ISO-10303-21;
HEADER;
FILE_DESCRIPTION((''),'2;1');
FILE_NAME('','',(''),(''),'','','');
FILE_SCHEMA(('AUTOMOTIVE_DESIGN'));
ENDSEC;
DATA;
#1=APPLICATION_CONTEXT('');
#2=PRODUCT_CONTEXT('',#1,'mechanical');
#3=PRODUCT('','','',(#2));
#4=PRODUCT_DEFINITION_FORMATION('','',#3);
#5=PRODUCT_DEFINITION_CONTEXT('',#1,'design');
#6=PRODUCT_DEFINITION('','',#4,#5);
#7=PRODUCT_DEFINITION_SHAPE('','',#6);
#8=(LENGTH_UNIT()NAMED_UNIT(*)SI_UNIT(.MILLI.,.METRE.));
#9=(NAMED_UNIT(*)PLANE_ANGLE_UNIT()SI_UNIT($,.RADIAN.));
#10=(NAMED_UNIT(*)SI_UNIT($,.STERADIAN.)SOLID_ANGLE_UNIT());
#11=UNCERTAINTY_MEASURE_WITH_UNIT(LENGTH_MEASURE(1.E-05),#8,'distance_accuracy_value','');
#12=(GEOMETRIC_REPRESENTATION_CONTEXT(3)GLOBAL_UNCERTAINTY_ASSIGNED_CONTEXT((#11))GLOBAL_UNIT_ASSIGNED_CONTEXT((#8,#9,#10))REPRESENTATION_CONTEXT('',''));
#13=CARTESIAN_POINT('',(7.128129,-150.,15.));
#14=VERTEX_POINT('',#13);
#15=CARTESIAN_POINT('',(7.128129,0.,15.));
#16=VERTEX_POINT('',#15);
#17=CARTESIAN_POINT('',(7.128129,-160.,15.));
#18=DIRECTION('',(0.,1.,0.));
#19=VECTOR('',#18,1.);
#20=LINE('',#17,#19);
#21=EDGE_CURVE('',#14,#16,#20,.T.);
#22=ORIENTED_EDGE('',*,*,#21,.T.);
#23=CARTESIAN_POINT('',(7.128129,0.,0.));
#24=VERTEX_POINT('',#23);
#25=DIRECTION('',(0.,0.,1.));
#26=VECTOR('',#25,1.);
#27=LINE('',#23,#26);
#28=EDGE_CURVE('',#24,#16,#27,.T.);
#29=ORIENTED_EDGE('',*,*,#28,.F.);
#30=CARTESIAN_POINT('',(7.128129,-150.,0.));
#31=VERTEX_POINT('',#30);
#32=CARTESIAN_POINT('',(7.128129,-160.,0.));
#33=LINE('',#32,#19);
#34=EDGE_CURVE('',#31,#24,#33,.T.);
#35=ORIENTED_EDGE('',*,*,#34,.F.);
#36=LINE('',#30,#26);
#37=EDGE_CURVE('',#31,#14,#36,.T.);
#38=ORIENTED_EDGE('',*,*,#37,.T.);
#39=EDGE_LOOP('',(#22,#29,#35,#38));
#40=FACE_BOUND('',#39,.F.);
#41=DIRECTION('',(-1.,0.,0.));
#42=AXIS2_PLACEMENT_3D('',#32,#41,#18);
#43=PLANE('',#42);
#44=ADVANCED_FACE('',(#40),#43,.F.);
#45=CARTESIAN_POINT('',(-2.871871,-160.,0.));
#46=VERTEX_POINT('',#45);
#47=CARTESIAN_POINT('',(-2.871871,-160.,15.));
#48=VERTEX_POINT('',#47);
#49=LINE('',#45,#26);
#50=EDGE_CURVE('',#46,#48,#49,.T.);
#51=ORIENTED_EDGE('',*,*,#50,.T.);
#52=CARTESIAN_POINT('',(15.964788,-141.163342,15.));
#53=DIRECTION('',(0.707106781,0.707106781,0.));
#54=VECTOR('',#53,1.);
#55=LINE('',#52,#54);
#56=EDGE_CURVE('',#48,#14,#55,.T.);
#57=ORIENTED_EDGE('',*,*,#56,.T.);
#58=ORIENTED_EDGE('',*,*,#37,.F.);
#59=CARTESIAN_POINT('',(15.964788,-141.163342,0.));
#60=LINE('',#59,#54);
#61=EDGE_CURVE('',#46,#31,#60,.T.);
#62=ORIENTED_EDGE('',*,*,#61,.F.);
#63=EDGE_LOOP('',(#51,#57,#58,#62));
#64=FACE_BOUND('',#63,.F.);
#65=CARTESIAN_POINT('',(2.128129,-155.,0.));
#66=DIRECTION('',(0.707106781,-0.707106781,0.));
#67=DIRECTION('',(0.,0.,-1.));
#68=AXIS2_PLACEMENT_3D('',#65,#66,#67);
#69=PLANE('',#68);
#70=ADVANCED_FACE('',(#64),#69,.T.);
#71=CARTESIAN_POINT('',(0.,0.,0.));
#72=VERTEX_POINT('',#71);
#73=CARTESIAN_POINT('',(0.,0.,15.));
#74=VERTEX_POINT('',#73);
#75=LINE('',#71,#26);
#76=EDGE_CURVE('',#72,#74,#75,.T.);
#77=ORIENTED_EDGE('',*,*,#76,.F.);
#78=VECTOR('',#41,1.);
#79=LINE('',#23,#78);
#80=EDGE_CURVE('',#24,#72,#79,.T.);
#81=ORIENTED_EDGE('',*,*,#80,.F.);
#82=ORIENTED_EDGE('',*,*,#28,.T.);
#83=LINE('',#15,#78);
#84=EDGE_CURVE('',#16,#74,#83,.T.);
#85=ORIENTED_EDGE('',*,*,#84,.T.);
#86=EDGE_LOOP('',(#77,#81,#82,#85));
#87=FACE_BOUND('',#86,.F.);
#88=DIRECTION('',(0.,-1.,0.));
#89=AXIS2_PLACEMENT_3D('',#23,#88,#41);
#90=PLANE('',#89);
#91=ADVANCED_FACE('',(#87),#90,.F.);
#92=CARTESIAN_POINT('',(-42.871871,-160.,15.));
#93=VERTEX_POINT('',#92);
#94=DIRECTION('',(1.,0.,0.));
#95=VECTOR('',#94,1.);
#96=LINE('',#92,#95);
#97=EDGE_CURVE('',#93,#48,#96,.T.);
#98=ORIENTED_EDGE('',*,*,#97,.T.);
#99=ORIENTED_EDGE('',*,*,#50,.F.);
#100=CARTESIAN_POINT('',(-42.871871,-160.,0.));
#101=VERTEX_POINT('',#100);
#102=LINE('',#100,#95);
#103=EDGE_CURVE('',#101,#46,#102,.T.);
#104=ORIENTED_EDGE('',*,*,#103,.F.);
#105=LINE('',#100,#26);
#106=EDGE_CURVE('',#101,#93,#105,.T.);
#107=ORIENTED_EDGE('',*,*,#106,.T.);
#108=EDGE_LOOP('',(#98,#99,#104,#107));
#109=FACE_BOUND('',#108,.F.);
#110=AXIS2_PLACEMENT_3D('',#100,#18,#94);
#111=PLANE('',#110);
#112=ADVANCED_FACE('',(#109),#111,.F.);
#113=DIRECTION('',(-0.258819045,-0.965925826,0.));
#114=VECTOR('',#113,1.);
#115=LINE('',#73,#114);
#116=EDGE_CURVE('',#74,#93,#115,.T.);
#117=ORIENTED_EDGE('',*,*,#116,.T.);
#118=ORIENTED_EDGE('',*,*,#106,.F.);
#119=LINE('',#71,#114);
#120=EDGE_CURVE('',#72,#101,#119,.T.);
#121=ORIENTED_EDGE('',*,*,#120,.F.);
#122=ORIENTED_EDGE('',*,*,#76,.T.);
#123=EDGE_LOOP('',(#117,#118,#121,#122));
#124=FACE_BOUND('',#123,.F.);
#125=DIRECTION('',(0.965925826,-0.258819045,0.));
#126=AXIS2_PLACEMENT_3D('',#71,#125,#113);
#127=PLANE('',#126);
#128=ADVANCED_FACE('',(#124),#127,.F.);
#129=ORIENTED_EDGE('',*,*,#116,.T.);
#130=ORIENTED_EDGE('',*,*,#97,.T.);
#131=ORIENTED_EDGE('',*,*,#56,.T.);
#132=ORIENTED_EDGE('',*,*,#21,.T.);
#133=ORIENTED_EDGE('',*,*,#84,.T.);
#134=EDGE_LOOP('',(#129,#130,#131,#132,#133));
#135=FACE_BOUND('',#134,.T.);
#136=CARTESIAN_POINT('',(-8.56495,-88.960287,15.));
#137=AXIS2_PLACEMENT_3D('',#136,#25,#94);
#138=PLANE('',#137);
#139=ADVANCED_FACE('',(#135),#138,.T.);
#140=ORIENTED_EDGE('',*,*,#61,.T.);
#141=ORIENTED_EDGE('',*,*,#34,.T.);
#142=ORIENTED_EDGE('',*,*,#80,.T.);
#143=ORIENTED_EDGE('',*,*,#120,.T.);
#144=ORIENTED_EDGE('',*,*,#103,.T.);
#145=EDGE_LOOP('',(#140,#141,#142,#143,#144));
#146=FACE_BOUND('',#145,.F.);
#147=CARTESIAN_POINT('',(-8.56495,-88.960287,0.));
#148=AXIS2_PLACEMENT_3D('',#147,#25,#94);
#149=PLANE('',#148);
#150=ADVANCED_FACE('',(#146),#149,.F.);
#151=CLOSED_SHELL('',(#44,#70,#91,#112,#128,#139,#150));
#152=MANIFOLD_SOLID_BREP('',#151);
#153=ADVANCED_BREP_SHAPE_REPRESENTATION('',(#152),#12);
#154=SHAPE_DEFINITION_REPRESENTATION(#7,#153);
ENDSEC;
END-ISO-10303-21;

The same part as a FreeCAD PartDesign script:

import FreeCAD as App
import Part
import Sketcher
Q = App.Units.Quantity


def edges_at(feature, points):
    """Names of the edges that pass closest to the given points."""
    edges = feature.Shape.Edges
    near = lambda p: min(range(len(edges)), key=lambda i: edges[i].distToShape(Part.Vertex(*p))[0])
    return sorted({f"Edge{near(p) + 1}" for p in points})


def add_polygon(sketch, points):
    """Adds a closed chain of lines whose ends are joined by coincident constraints."""
    first, n = sketch.GeometryCount, len(points)
    for a, b in zip(points, points[1:] + points[:1]):
        sketch.addGeometry(Part.LineSegment(App.Vector(*a, 0), App.Vector(*b, 0)), False)
    for i in range(n):
        sketch.addConstraint(Sketcher.Constraint("Coincident", first + i, 2, first + (i + 1) % n, 1))

doc = App.newDocument("Part")
body = doc.addObject("PartDesign::Body", "Body")

sketch1 = doc.addObject("Sketcher::SketchObject", "Sketch")
body.addObject(sketch1)
sketch1.AttachmentSupport = (doc.XY_Plane, [""])
sketch1.MapMode = "FlatFace"
add_polygon(sketch1, [(0, 0), (-43, -160), (7, -160), (7, 0)])
sketch1.addConstraint(Sketcher.Constraint("Horizontal", 1))
sketch1.addConstraint(Sketcher.Constraint("Vertical", 2))
sketch1.addConstraint(Sketcher.Constraint("Horizontal", 3))
sketch1.addConstraint(Sketcher.Constraint("Coincident", 3, 2, -1, 1))
sketch1.addConstraint(Sketcher.Constraint("DistanceX", 1, 1, 1, 2, Q("50 mm")))
sketch1.addConstraint(Sketcher.Constraint("DistanceY", 2, 1, 2, 2, Q("160 mm")))
sketch1.addConstraint(Sketcher.Constraint("Angle", 0, Q("-105 deg")))
pad1 = doc.addObject("PartDesign::Pad", "Pad")
body.addObject(pad1)
pad1.Profile = sketch1
pad1.Length = 15
doc.recompute()

chamfer = doc.addObject("PartDesign::Chamfer", "Chamfer")
body.addObject(chamfer)
chamfer.Base = (pad1, edges_at(pad1, [(7.128, -160, 7.5)]))
chamfer.Size = 10

doc.recompute()
